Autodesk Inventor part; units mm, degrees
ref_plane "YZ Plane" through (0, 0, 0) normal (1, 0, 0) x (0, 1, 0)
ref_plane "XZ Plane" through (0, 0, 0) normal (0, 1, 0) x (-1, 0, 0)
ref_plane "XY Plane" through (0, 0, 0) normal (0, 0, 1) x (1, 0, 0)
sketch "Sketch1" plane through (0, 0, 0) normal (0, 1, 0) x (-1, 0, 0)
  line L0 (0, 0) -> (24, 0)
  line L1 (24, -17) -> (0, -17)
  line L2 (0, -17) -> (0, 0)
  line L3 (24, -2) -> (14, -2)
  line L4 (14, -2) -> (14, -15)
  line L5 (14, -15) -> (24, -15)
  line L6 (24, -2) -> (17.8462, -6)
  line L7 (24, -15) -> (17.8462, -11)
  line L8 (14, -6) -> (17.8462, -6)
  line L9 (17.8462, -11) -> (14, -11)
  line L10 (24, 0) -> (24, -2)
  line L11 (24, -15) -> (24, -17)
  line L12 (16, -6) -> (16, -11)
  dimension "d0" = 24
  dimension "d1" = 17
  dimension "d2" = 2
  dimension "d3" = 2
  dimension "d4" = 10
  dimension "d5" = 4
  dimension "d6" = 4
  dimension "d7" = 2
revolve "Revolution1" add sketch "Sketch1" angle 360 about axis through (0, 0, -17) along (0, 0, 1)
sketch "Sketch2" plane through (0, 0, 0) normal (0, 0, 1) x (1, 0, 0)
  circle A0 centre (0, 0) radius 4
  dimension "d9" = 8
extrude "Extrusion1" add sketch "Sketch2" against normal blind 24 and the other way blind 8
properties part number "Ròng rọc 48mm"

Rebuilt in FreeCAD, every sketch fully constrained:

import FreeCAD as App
import Part
import Sketcher

V = App.Vector
Q = App.Units.Quantity

doc = App.newDocument("Part")
body = doc.addObject("PartDesign::Body", "Body")

sketch1 = body.newObject("Sketcher::SketchObject", "Sketch")
sketch1.AttachmentSupport = (doc.getObject("XZ_Plane"), [""])
sketch1.MapMode = "FlatFace"
sketch1.addGeometry([
    Part.LineSegment(V(-24, 0, 0), V(0, 0, 0)),
    Part.LineSegment(V(0, 0, 0), V(0, -17, 0)),
    Part.LineSegment(V(0, -17, 0), V(-24, -17, 0)),
    Part.LineSegment(V(-24, -17, 0), V(-24, -15, 0)),
    Part.LineSegment(V(-24, -15, 0), V(-17.8, -11, 0)),
    Part.LineSegment(V(-17.8, -11, 0), V(-16, -11, 0)),
    Part.LineSegment(V(-16, -11, 0), V(-16, -6, 0)),
    Part.LineSegment(V(-16, -6, 0), V(-17.8, -6, 0)),
    Part.LineSegment(V(-17.8, -6, 0), V(-24, -2, 0)),
    Part.LineSegment(V(-24, -2, 0), V(-24, 0, 0)),
], False)
sketch1.addConstraint([
    Sketcher.Constraint("Coincident", 0, 2, 1, 1),
    Sketcher.Constraint("Coincident", 1, 2, 2, 1),
    Sketcher.Constraint("Coincident", 2, 2, 3, 1),
    Sketcher.Constraint("Coincident", 3, 2, 4, 1),
    Sketcher.Constraint("Coincident", 4, 2, 5, 1),
    Sketcher.Constraint("Coincident", 5, 2, 6, 1),
    Sketcher.Constraint("Coincident", 6, 2, 7, 1),
    Sketcher.Constraint("Coincident", 7, 2, 8, 1),
    Sketcher.Constraint("Coincident", 8, 2, 9, 1),
    Sketcher.Constraint("Coincident", 9, 2, 0, 1),
    Sketcher.Constraint("Horizontal", 0),
    Sketcher.Constraint("Vertical", 1),
    Sketcher.Constraint("Horizontal", 2),
    Sketcher.Constraint("Vertical", 3),
    Sketcher.Constraint("Horizontal", 5),
    Sketcher.Constraint("Vertical", 6),
    Sketcher.Constraint("Horizontal", 7),
    Sketcher.Constraint("Vertical", 9),
    Sketcher.Constraint("Coincident", 0, 2, -1, 1),
    Sketcher.Constraint("Vertical", 4, 2, 7, 2),
    Sketcher.Constraint("Vertical", 3, 2, 8, 2),
    Sketcher.Constraint("Equal", 3, 9),
    Sketcher.Constraint("Equal", 4, 8),
    Sketcher.Constraint("DistanceX", 0, 1, 0, 2, Q("24 mm")),
    Sketcher.Constraint("DistanceY", 1, 2, 1, 1, Q("17 mm")),
    Sketcher.Constraint("DistanceY", 3, 1, 3, 2, Q("2 mm")),
    Sketcher.Constraint("DistanceY", 3, 2, 4, 2, Q("4 mm")),
    Sketcher.Constraint("DistanceX", 5, 2, -1, 1, Q("16 mm")),
    Sketcher.Constraint("DistanceX", 5, 1, 5, 2, Q("1.8462 mm")),
])
revolution = body.newObject("PartDesign::Revolution", "Revolution")
revolution.Profile = sketch1
revolution.ReferenceAxis = (sketch1, ["V_Axis"])
revolution.Angle = 360

sketch2 = body.newObject("Sketcher::SketchObject", "Sketch001")
sketch2.AttachmentSupport = (doc.getObject("XY_Plane"), [""])
sketch2.MapMode = "FlatFace"
sketch2.addGeometry(Part.Circle(V(0, 0, 0), V(0, 0, 1), 4), False)
sketch2.addConstraint([
    Sketcher.Constraint("Coincident", 0, 3, -1, 1),
    Sketcher.Constraint("Diameter", 0, Q("8 mm")),
])
pad1 = body.newObject("PartDesign::Pad", "Pad")
pad1.Profile = sketch2
pad1.Type = "TwoLengths"
pad1.Length = 24
pad1.Length2 = 8
pad1.Reversed = True

doc.recompute()
